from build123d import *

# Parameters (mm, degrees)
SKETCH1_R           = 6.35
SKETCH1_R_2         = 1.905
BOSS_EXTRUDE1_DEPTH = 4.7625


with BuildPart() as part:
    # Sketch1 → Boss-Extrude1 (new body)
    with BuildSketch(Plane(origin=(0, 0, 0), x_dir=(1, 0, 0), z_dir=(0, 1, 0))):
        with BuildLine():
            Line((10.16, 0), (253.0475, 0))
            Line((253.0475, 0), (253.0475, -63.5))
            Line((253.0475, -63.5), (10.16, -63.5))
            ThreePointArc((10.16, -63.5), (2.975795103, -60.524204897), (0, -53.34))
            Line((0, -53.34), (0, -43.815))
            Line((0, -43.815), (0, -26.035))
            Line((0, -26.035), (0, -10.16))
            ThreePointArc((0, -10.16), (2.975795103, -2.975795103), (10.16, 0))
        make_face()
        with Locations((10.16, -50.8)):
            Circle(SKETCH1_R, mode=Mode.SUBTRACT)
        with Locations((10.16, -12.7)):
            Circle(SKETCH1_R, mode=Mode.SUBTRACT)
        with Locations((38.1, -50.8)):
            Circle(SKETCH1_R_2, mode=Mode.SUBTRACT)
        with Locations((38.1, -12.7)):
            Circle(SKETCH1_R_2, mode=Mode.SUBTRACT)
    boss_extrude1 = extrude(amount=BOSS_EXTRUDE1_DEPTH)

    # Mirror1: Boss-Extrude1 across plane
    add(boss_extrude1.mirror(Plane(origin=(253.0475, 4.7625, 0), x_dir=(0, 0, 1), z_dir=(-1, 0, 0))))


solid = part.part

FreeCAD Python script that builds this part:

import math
import FreeCAD as App
import Part
import Sketcher
from FreeCAD import Vector
Q = App.Units.Quantity

doc = App.newDocument("Part")
body = doc.addObject("PartDesign::Body", "Body")

sketch1 = body.newObject("Sketcher::SketchObject", "Sketch")
sketch1.AttachmentSupport = (doc.getObject("XZ_Plane"), [""])
sketch1.MapMode = "FlatFace"
sketch1.addGeometry([
    Part.LineSegment(Vector(253.0475, 0, 0), Vector(10.16, 0, 0)),
    Part.ArcOfCircle(Part.Circle(Vector(10.16, 10.16, 0), Vector(0, 0, 1), 10.16), math.radians(180), math.radians(270)),
    Part.LineSegment(Vector(0, 10.16, 0), Vector(0, 53.34, 0)),
    Part.ArcOfCircle(Part.Circle(Vector(10.16, 53.34, 0), Vector(0, 0, 1), 10.16), math.radians(90), math.radians(180)),
    Part.LineSegment(Vector(10.16, 63.5, 0), Vector(253.0475, 63.5, 0)),
    Part.LineSegment(Vector(253.0475, 63.5, 0), Vector(253.0475, 0, 0)),
    Part.Circle(Vector(38.1, 50.8, 0), Vector(0, 0, 1), 1.905),
    Part.Circle(Vector(10.16, 50.8, 0), Vector(0, 0, 1), 6.35),
    Part.Circle(Vector(38.1, 12.7, 0), Vector(0, 0, 1), 1.905),
    Part.Circle(Vector(10.16, 12.7, 0), Vector(0, 0, 1), 6.35),
], False)
sketch1.addConstraint([
    Sketcher.Constraint("Tangent", 0, 2, 1, 2),
    Sketcher.Constraint("Tangent", 1, 1, 2, 1),
    Sketcher.Constraint("Tangent", 2, 2, 3, 2),
    Sketcher.Constraint("Tangent", 3, 1, 4, 1),
    Sketcher.Constraint("Coincident", 4, 2, 5, 1),
    Sketcher.Constraint("Coincident", 5, 2, 0, 1),
    Sketcher.Constraint("Horizontal", 0),
    Sketcher.Constraint("Vertical", 2),
    Sketcher.Constraint("Horizontal", 4),
    Sketcher.Constraint("Vertical", 5),
    Sketcher.Constraint("Equal", 1, 3),
    Sketcher.Constraint("Equal", 6, 8),
    Sketcher.Constraint("Equal", 7, 9),
    Sketcher.Constraint("PointOnObject", 0, 2, -1),
    Sketcher.Constraint("PointOnObject", 1, 1, -2),
    Sketcher.Constraint("Horizontal", 6, 3, 7, 3),
    Sketcher.Constraint("Horizontal", 8, 3, 9, 3),
    Sketcher.Constraint("Vertical", 3, 3, 7, 3),
    Sketcher.Constraint("Vertical", 6, 3, 8, 3),
    Sketcher.Constraint("Vertical", 7, 3, 9, 3),
    Sketcher.Constraint("Diameter", 7, Q("0.5 in")),
    Sketcher.Constraint("Radius", 1, Q("0.4 in")),
    Sketcher.Constraint("Diameter", 6, Q("0.15 in")),
    Sketcher.Constraint("DistanceY", 2, 1, 2, 2, Q("1.7 in")),
    Sketcher.Constraint("DistanceY", -1, 1, 6, 3, Q("2 in")),
    Sketcher.Constraint("DistanceY", 9, 3, 3, 1, Q("2 in")),
    Sketcher.Constraint("DistanceX", -1, 1, 6, 3, Q("1.5 in")),
    Sketcher.Constraint("DistanceX", 0, 2, 0, 1, Q("9.5625 in")),
])
pad1 = body.newObject("PartDesign::Pad", "Pad")
pad1.Profile = sketch1
pad1.Length = Q("0.1875 in")
pad1.Reversed = True
doc.recompute()

datumplane = body.newObject("PartDesign::Plane", "DatumPlane")
datumplane.AttachmentSupport = (doc.getObject("YZ_Plane"), [""])
datumplane.MapMode = "FlatFace"
datumplane.AttachmentOffset = App.Placement(Vector(0, 0, 9.9625 * 25.4), App.Rotation())
mirrored = body.newObject("PartDesign::Mirrored", "Mirrored")
mirrored.Originals = [pad1]
mirrored.MirrorPlane = (datumplane, [""])
body.Tip = mirrored

doc.recompute()
